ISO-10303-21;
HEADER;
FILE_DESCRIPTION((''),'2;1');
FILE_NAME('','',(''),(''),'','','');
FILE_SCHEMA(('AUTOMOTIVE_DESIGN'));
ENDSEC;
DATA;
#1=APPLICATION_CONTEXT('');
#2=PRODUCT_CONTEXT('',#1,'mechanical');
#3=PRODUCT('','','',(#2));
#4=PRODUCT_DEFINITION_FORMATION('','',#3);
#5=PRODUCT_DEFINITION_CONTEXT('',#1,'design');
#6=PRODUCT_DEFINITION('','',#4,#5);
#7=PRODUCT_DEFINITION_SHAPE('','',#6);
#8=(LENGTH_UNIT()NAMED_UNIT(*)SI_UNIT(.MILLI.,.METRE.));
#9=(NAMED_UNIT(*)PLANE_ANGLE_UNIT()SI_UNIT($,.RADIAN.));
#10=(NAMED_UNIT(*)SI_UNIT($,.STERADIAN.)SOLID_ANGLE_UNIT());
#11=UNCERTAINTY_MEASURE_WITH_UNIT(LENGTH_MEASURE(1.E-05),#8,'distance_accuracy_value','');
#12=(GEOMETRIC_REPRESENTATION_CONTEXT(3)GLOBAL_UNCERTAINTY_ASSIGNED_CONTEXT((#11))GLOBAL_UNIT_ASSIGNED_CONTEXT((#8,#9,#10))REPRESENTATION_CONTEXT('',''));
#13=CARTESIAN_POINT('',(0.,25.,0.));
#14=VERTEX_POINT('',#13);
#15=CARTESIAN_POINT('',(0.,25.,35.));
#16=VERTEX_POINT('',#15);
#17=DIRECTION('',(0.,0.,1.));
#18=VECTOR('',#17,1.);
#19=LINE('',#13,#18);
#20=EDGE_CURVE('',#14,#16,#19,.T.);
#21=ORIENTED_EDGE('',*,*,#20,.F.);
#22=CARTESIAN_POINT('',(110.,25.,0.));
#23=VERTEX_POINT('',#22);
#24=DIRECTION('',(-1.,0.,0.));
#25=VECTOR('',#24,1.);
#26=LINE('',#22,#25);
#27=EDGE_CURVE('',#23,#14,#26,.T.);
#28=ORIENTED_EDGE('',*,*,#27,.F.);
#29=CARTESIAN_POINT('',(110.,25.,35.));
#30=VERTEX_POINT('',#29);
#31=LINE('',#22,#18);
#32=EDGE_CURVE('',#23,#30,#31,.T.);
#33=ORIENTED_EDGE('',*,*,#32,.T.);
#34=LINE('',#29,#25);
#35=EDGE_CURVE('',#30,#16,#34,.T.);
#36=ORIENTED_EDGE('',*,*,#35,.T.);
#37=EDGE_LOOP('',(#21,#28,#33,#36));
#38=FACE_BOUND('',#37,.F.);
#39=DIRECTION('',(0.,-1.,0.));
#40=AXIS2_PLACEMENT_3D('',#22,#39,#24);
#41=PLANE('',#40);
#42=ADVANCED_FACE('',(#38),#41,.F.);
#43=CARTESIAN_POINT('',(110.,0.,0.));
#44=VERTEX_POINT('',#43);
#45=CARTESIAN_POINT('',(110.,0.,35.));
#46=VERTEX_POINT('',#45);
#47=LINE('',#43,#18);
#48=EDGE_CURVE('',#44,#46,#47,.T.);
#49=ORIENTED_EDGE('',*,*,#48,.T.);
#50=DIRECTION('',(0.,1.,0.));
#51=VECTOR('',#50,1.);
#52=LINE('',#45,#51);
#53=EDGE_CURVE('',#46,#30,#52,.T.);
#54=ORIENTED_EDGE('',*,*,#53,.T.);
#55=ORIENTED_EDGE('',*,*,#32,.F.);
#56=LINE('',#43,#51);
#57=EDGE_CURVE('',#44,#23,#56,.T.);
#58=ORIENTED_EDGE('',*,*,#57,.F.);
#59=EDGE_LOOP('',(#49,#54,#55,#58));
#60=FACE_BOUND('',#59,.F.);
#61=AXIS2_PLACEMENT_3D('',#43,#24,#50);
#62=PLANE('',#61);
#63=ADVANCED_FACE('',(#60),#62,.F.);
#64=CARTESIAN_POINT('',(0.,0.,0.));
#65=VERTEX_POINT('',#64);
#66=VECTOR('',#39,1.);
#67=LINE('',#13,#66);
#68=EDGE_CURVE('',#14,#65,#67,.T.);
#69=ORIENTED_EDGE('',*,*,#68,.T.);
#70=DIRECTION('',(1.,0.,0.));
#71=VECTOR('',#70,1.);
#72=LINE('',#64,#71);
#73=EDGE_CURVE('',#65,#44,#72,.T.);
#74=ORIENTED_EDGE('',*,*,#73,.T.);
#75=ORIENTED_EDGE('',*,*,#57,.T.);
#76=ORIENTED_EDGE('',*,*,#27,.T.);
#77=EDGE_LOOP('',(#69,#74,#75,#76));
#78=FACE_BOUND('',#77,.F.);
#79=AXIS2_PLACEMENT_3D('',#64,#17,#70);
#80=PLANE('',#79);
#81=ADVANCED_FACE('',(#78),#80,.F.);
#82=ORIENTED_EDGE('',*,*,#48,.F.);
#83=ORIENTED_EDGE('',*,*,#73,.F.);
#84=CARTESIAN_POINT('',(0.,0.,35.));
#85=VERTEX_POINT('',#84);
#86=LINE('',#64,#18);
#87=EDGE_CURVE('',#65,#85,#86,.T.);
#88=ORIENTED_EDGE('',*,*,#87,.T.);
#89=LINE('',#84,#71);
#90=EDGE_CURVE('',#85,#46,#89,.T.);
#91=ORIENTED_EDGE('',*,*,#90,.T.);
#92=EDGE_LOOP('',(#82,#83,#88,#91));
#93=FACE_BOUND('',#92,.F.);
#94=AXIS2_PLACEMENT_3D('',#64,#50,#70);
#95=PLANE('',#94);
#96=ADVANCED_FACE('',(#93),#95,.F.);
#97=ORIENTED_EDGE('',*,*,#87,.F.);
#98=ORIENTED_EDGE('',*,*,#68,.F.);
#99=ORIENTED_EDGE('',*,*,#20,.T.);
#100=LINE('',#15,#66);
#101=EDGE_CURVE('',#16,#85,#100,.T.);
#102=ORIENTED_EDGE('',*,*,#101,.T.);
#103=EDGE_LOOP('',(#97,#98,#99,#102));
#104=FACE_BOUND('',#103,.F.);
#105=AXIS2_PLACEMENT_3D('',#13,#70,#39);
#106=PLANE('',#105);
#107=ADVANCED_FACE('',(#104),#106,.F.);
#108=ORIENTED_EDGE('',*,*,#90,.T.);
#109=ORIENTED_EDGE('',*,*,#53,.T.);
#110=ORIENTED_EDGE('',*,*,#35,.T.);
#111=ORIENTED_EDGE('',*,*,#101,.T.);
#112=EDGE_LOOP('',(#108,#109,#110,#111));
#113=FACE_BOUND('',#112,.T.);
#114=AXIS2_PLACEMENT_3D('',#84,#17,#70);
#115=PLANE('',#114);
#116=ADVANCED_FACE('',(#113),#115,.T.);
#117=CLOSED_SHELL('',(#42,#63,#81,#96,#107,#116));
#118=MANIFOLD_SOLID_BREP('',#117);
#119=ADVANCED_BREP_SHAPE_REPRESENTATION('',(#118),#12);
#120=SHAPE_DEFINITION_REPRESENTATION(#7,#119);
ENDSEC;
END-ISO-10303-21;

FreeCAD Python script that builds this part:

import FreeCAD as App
import Part
import Sketcher
from FreeCAD import Vector
Q = App.Units.Quantity


def add_polygon(sketch, points):
    """Adds a closed chain of lines whose ends are joined by coincident constraints."""
    first, n = sketch.GeometryCount, len(points)
    for a, b in zip(points, points[1:] + points[:1]):
        sketch.addGeometry(Part.LineSegment(App.Vector(*a, 0), App.Vector(*b, 0)), False)
    for i in range(n):
        sketch.addConstraint(Sketcher.Constraint("Coincident", first + i, 2, first + (i + 1) % n, 1))

doc = App.newDocument("Part")
body = doc.addObject("PartDesign::Body", "Body")

sketch1 = doc.addObject("Sketcher::SketchObject", "Sketch")
body.addObject(sketch1)
sketch1.AttachmentSupport = (doc.XY_Plane, [""])
sketch1.MapMode = "FlatFace"
add_polygon(sketch1, [(0, 25), (0, 0), (110, 0), (110, 25)])
sketch1.addConstraint(Sketcher.Constraint("Vertical", 0))
sketch1.addConstraint(Sketcher.Constraint("Horizontal", 1))
sketch1.addConstraint(Sketcher.Constraint("Vertical", 2))
sketch1.addConstraint(Sketcher.Constraint("Horizontal", 3))
sketch1.addConstraint(Sketcher.Constraint("Coincident", 0, 2, -1, 1))
sketch1.addConstraint(Sketcher.Constraint("DistanceX", 1, 1, 1, 2, Q("110 mm")))
sketch1.addConstraint(Sketcher.Constraint("DistanceY", 0, 2, 0, 1, Q("25 mm")))
pad1 = doc.addObject("PartDesign::Pad", "Pad")
body.addObject(pad1)
pad1.Profile = sketch1
pad1.Length = 35

doc.recompute()
